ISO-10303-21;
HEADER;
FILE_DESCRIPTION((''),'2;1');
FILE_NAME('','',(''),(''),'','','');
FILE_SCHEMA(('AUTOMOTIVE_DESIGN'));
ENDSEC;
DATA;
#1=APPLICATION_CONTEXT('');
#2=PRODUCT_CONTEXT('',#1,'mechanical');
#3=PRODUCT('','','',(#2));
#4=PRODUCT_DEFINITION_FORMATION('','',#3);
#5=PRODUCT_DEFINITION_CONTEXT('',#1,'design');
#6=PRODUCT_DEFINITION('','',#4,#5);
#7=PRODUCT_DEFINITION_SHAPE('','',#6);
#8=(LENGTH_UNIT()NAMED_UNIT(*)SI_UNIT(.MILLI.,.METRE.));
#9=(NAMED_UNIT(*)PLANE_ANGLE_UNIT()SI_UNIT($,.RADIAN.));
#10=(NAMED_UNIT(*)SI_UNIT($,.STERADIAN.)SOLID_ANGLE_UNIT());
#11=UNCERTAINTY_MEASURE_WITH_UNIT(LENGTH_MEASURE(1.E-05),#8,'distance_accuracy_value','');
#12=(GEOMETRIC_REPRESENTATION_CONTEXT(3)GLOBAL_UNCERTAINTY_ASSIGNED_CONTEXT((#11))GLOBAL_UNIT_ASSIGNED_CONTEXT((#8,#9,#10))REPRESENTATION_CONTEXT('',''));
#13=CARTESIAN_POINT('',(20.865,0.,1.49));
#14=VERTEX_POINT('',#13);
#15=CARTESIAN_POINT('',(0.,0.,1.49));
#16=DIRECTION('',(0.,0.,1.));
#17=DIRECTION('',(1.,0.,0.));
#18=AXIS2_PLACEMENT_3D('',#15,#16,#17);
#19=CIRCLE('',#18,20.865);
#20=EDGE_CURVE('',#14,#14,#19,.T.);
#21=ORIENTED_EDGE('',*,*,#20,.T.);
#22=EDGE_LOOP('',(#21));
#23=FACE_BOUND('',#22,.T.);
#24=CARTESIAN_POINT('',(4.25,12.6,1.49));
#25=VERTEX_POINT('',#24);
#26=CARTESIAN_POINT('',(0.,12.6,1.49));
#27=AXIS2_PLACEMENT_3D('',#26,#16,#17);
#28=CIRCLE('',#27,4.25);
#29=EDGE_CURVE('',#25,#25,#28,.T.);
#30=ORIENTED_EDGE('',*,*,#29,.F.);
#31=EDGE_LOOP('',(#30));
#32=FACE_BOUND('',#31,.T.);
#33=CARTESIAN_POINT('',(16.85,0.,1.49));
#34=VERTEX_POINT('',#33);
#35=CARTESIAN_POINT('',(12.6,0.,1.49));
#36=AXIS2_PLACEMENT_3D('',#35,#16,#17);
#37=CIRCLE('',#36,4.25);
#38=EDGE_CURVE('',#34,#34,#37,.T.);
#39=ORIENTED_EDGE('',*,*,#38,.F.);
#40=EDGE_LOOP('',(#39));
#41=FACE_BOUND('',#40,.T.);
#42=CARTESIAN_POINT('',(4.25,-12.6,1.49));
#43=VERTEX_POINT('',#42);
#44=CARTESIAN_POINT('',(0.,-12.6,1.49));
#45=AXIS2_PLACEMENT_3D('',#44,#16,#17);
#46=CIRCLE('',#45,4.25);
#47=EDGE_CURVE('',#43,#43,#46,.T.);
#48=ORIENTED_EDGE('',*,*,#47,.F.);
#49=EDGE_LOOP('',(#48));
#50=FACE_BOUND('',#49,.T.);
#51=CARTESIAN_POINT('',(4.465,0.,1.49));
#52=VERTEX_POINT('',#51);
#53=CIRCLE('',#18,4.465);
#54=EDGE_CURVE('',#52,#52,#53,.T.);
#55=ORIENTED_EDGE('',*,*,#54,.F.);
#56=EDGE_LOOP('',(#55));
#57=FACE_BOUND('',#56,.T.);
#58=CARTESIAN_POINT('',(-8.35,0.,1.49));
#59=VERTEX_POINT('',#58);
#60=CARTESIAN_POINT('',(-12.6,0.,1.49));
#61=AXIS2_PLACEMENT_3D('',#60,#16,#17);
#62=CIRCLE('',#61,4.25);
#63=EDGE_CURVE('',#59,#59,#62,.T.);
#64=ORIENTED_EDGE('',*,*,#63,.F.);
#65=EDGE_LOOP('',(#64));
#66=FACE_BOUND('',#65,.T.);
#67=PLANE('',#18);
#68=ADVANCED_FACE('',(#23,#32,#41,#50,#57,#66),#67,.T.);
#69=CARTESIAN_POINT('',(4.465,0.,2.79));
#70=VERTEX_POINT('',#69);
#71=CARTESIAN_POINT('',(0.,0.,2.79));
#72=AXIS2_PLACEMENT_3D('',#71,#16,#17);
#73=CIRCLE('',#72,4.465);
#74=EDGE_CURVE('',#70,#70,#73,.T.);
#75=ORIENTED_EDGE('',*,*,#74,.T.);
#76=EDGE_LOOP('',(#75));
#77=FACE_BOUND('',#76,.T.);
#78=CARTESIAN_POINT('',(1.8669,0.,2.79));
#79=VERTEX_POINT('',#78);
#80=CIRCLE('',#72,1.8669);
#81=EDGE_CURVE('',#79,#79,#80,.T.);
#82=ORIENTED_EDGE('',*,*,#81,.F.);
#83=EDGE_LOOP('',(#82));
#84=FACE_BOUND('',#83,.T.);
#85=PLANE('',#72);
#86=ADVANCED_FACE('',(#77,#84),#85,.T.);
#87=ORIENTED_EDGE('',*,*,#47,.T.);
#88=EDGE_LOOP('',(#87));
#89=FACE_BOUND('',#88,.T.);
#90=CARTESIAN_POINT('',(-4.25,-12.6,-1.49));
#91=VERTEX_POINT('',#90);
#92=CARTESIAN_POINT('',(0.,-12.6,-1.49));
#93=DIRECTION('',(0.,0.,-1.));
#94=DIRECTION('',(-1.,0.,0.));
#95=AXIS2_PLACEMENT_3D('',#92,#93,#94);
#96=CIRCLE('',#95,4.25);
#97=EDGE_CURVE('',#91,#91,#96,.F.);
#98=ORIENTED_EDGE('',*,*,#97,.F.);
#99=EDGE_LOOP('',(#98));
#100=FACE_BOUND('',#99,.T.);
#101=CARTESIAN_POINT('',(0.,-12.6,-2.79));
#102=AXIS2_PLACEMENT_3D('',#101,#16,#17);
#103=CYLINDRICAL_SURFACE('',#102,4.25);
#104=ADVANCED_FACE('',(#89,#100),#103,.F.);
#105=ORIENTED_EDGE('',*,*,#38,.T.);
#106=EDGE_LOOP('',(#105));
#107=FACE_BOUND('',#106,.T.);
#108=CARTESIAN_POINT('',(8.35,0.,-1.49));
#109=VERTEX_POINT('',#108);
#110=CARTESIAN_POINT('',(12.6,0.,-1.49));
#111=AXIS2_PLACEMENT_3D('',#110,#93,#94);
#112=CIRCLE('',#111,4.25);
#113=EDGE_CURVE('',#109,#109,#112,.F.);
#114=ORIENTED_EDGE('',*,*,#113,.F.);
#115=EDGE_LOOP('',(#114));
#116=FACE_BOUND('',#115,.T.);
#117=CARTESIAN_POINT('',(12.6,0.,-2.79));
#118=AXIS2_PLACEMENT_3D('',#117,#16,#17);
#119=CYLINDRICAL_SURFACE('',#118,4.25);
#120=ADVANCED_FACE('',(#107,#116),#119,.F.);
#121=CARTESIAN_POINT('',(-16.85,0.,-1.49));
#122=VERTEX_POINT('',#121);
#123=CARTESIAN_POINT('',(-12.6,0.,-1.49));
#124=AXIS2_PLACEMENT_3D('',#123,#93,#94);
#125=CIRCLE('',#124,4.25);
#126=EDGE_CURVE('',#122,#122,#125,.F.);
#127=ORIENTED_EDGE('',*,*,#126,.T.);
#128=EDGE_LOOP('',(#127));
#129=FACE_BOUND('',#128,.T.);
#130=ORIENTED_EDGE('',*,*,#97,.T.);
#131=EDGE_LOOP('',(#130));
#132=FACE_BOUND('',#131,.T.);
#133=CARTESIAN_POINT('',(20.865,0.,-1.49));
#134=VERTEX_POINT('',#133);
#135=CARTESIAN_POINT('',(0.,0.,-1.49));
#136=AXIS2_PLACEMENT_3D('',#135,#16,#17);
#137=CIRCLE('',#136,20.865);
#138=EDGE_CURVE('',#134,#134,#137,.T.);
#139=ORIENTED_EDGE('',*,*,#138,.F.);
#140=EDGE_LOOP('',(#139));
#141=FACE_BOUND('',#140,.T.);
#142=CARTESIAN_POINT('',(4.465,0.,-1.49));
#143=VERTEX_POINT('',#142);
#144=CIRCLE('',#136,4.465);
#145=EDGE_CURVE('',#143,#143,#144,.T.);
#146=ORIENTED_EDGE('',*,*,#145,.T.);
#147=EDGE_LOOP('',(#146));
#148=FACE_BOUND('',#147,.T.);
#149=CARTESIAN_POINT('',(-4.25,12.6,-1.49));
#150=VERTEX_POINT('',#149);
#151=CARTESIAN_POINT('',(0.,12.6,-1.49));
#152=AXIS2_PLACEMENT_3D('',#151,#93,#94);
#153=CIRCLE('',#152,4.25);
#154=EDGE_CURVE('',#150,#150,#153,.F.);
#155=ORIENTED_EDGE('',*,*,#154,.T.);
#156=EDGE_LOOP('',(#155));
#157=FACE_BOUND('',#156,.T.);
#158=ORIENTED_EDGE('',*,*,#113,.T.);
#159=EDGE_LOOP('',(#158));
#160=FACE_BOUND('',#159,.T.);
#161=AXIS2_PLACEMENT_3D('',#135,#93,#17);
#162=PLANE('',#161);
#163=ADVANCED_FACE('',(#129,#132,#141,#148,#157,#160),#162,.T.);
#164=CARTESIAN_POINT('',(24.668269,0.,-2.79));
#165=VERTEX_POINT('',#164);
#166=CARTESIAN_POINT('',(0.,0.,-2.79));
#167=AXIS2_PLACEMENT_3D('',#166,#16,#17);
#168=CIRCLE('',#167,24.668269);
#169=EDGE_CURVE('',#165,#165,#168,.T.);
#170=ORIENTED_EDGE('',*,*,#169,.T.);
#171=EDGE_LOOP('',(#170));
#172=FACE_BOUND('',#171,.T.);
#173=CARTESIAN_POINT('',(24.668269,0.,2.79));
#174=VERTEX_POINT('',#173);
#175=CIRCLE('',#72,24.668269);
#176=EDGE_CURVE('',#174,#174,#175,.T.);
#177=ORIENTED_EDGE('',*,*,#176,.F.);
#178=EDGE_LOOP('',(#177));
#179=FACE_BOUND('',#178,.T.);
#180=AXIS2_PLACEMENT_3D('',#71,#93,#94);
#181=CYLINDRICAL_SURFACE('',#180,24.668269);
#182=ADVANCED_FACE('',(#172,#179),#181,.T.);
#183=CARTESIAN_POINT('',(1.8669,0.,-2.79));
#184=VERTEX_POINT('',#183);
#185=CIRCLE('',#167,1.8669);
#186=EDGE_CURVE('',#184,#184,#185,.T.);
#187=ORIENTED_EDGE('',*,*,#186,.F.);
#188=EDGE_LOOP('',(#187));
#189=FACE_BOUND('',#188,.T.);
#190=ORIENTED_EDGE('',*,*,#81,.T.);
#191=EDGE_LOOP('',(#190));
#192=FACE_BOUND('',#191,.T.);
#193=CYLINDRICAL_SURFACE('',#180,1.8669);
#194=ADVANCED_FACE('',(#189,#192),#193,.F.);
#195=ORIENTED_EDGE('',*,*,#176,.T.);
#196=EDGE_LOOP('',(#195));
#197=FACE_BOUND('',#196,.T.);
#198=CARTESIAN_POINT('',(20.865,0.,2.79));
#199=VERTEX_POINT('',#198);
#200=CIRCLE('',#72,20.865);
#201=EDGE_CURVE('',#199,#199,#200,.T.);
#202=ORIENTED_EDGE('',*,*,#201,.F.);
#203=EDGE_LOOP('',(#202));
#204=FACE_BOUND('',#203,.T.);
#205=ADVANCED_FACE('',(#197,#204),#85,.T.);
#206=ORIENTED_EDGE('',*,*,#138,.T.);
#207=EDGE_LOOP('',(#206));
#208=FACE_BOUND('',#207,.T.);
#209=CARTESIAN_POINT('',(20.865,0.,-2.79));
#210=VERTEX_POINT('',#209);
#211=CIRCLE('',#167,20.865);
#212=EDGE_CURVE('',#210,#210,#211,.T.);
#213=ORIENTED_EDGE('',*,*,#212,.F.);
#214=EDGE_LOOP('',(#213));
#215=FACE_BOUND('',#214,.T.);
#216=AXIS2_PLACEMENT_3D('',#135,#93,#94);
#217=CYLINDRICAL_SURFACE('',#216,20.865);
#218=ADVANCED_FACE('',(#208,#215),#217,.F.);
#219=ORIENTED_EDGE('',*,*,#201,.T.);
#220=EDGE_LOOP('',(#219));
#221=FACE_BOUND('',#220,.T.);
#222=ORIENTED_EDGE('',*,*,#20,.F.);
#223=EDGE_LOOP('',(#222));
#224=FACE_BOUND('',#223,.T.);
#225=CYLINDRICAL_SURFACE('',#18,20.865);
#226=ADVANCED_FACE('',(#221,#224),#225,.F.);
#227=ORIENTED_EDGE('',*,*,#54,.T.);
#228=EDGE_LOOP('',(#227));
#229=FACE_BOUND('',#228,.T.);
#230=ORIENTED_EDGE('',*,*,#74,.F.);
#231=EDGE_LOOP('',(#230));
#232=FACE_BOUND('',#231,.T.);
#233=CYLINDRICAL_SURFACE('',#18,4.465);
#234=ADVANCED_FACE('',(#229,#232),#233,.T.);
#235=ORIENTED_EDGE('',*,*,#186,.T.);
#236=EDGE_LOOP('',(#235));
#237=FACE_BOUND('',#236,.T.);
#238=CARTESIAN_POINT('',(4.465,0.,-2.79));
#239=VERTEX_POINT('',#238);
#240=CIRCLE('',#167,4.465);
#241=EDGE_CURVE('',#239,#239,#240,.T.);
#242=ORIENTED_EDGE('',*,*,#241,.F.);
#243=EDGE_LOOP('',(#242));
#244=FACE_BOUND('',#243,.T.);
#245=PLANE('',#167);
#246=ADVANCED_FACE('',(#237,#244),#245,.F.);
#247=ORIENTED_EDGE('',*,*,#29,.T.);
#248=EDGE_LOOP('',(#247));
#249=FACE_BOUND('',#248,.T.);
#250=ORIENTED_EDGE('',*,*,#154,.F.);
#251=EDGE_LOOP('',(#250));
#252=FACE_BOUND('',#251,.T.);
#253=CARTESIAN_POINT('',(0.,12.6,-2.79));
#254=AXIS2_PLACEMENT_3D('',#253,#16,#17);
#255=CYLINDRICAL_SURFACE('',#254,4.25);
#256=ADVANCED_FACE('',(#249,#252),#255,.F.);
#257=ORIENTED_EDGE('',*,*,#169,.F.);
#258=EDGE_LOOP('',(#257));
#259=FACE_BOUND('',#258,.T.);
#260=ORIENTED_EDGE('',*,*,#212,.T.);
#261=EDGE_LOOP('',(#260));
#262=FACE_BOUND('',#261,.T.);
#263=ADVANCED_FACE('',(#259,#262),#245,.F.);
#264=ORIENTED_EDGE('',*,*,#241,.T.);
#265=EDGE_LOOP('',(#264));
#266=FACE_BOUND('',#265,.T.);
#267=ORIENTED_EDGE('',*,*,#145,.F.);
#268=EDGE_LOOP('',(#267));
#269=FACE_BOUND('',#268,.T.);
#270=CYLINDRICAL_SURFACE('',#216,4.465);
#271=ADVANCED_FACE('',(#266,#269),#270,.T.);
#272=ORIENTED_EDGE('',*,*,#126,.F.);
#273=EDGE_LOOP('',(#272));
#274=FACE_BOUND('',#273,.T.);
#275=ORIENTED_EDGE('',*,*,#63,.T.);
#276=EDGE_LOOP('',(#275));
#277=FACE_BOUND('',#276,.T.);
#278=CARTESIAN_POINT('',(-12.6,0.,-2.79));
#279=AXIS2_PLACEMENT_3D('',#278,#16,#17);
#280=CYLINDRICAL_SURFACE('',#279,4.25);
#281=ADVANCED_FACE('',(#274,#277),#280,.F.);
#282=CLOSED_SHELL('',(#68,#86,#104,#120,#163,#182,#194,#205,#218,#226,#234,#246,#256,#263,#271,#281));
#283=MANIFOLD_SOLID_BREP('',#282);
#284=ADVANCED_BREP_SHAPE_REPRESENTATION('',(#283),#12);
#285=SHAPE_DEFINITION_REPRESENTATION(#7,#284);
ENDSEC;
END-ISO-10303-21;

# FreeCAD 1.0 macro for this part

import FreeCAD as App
import Part
import Sketcher

doc = App.newDocument("Part")
body = doc.addObject("PartDesign::Body", "Body")

# Sketch on XY plane
sketch1 = body.newObject("Sketcher::SketchObject", "Sketch")
sketch1.AttachmentSupport = (doc.getObject("XY_Plane"), [""])
sketch1.MapMode = "FlatFace"
sketch1.addGeometry([
    Part.Circle(App.Vector(0, 0, 0), App.Vector(0, 0, 1), 24.7),
    Part.Circle(App.Vector(0, 0, 0), App.Vector(0, 0, 1), 1.9),
], False)
sketch1.addConstraint([
    Sketcher.Constraint("Coincident", 0, 3, -1, 1),
    Sketcher.Constraint("Coincident", 1, 3, -1, 1),
    Sketcher.Constraint("Diameter", 1, 3.7338),
    Sketcher.Constraint("Diameter", 0, 49.336538),
])
pad1 = body.newObject("PartDesign::Pad", "Pad")
pad1.Profile = sketch1
pad1.Length = 5.58
pad1.Midplane = True

# Sketch on XY plane
sketch2 = body.newObject("Sketcher::SketchObject", "Sketch001")
sketch2.AttachmentSupport = (doc.getObject("XY_Plane"), [""])
sketch2.MapMode = "FlatFace"
sketch2.AttachmentOffset = App.Placement(App.Vector(0, 0, 2.79), App.Rotation())
sketch2.addGeometry([
    Part.Circle(App.Vector(0, 0, 0), App.Vector(0, 0, 1), 20.9),
    Part.Circle(App.Vector(0, 0, 0), App.Vector(0, 0, 1), 4.5),
], False)
sketch2.addConstraint([
    Sketcher.Constraint("Coincident", 0, 3, -1, 1),
    Sketcher.Constraint("Coincident", 1, 3, -1, 1),
    Sketcher.Constraint("Diameter", 0, 41.73),
    Sketcher.Constraint("Diameter", 1, 8.93),
])
pocket1 = body.newObject("PartDesign::Pocket", "Pocket")
pocket1.Profile = sketch2
pocket1.Length = 1.3

# Sketch on XY plane
sketch3 = body.newObject("Sketcher::SketchObject", "Sketch002")
sketch3.AttachmentSupport = (doc.getObject("XY_Plane"), [""])
sketch3.MapMode = "FlatFace"
sketch3.AttachmentOffset = App.Placement(App.Vector(0, 0, 1.49), App.Rotation())
sketch3.addGeometry([
    Part.Circle(App.Vector(0, 12.6, 0), App.Vector(0, 0, 1), 4.2),
    Part.Circle(App.Vector(12.6, 0, 0), App.Vector(0, 0, 1), 4.2),
    Part.Circle(App.Vector(0, -12.6, 0), App.Vector(0, 0, 1), 4.2),
    Part.Circle(App.Vector(-12.6, 0, 0), App.Vector(0, 0, 1), 4.2),
], False)
sketch3.addConstraint([
    Sketcher.Constraint("Equal", 0, 1),
    Sketcher.Constraint("Equal", 1, 2),
    Sketcher.Constraint("Equal", 2, 3),
    Sketcher.Constraint("Symmetric", 0, 3, 2, 3, -1, 1),
    Sketcher.Constraint("Symmetric", 1, 3, 3, 3, -1, 1),
    Sketcher.Constraint("PointOnObject", 0, 3, -2),
    Sketcher.Constraint("PointOnObject", 1, 3, -1),
    Sketcher.Constraint("Diameter", 0, 8.5),
    Sketcher.Constraint("DistanceY", -1, 1, 0, 3, 12.6),
    Sketcher.Constraint("DistanceX", -1, 1, 1, 3, 12.6),
])
pocket2 = body.newObject("PartDesign::Pocket", "Pocket001")
pocket2.Profile = sketch3
pocket2.Type = "ThroughAll"
doc.recompute()

mirrored = body.newObject("PartDesign::Mirrored", "Mirrored")
mirrored.Originals = [pocket1]
mirrored.MirrorPlane = (doc.getObject("XY_Plane"), [""])
body.Tip = mirrored

doc.recompute()
